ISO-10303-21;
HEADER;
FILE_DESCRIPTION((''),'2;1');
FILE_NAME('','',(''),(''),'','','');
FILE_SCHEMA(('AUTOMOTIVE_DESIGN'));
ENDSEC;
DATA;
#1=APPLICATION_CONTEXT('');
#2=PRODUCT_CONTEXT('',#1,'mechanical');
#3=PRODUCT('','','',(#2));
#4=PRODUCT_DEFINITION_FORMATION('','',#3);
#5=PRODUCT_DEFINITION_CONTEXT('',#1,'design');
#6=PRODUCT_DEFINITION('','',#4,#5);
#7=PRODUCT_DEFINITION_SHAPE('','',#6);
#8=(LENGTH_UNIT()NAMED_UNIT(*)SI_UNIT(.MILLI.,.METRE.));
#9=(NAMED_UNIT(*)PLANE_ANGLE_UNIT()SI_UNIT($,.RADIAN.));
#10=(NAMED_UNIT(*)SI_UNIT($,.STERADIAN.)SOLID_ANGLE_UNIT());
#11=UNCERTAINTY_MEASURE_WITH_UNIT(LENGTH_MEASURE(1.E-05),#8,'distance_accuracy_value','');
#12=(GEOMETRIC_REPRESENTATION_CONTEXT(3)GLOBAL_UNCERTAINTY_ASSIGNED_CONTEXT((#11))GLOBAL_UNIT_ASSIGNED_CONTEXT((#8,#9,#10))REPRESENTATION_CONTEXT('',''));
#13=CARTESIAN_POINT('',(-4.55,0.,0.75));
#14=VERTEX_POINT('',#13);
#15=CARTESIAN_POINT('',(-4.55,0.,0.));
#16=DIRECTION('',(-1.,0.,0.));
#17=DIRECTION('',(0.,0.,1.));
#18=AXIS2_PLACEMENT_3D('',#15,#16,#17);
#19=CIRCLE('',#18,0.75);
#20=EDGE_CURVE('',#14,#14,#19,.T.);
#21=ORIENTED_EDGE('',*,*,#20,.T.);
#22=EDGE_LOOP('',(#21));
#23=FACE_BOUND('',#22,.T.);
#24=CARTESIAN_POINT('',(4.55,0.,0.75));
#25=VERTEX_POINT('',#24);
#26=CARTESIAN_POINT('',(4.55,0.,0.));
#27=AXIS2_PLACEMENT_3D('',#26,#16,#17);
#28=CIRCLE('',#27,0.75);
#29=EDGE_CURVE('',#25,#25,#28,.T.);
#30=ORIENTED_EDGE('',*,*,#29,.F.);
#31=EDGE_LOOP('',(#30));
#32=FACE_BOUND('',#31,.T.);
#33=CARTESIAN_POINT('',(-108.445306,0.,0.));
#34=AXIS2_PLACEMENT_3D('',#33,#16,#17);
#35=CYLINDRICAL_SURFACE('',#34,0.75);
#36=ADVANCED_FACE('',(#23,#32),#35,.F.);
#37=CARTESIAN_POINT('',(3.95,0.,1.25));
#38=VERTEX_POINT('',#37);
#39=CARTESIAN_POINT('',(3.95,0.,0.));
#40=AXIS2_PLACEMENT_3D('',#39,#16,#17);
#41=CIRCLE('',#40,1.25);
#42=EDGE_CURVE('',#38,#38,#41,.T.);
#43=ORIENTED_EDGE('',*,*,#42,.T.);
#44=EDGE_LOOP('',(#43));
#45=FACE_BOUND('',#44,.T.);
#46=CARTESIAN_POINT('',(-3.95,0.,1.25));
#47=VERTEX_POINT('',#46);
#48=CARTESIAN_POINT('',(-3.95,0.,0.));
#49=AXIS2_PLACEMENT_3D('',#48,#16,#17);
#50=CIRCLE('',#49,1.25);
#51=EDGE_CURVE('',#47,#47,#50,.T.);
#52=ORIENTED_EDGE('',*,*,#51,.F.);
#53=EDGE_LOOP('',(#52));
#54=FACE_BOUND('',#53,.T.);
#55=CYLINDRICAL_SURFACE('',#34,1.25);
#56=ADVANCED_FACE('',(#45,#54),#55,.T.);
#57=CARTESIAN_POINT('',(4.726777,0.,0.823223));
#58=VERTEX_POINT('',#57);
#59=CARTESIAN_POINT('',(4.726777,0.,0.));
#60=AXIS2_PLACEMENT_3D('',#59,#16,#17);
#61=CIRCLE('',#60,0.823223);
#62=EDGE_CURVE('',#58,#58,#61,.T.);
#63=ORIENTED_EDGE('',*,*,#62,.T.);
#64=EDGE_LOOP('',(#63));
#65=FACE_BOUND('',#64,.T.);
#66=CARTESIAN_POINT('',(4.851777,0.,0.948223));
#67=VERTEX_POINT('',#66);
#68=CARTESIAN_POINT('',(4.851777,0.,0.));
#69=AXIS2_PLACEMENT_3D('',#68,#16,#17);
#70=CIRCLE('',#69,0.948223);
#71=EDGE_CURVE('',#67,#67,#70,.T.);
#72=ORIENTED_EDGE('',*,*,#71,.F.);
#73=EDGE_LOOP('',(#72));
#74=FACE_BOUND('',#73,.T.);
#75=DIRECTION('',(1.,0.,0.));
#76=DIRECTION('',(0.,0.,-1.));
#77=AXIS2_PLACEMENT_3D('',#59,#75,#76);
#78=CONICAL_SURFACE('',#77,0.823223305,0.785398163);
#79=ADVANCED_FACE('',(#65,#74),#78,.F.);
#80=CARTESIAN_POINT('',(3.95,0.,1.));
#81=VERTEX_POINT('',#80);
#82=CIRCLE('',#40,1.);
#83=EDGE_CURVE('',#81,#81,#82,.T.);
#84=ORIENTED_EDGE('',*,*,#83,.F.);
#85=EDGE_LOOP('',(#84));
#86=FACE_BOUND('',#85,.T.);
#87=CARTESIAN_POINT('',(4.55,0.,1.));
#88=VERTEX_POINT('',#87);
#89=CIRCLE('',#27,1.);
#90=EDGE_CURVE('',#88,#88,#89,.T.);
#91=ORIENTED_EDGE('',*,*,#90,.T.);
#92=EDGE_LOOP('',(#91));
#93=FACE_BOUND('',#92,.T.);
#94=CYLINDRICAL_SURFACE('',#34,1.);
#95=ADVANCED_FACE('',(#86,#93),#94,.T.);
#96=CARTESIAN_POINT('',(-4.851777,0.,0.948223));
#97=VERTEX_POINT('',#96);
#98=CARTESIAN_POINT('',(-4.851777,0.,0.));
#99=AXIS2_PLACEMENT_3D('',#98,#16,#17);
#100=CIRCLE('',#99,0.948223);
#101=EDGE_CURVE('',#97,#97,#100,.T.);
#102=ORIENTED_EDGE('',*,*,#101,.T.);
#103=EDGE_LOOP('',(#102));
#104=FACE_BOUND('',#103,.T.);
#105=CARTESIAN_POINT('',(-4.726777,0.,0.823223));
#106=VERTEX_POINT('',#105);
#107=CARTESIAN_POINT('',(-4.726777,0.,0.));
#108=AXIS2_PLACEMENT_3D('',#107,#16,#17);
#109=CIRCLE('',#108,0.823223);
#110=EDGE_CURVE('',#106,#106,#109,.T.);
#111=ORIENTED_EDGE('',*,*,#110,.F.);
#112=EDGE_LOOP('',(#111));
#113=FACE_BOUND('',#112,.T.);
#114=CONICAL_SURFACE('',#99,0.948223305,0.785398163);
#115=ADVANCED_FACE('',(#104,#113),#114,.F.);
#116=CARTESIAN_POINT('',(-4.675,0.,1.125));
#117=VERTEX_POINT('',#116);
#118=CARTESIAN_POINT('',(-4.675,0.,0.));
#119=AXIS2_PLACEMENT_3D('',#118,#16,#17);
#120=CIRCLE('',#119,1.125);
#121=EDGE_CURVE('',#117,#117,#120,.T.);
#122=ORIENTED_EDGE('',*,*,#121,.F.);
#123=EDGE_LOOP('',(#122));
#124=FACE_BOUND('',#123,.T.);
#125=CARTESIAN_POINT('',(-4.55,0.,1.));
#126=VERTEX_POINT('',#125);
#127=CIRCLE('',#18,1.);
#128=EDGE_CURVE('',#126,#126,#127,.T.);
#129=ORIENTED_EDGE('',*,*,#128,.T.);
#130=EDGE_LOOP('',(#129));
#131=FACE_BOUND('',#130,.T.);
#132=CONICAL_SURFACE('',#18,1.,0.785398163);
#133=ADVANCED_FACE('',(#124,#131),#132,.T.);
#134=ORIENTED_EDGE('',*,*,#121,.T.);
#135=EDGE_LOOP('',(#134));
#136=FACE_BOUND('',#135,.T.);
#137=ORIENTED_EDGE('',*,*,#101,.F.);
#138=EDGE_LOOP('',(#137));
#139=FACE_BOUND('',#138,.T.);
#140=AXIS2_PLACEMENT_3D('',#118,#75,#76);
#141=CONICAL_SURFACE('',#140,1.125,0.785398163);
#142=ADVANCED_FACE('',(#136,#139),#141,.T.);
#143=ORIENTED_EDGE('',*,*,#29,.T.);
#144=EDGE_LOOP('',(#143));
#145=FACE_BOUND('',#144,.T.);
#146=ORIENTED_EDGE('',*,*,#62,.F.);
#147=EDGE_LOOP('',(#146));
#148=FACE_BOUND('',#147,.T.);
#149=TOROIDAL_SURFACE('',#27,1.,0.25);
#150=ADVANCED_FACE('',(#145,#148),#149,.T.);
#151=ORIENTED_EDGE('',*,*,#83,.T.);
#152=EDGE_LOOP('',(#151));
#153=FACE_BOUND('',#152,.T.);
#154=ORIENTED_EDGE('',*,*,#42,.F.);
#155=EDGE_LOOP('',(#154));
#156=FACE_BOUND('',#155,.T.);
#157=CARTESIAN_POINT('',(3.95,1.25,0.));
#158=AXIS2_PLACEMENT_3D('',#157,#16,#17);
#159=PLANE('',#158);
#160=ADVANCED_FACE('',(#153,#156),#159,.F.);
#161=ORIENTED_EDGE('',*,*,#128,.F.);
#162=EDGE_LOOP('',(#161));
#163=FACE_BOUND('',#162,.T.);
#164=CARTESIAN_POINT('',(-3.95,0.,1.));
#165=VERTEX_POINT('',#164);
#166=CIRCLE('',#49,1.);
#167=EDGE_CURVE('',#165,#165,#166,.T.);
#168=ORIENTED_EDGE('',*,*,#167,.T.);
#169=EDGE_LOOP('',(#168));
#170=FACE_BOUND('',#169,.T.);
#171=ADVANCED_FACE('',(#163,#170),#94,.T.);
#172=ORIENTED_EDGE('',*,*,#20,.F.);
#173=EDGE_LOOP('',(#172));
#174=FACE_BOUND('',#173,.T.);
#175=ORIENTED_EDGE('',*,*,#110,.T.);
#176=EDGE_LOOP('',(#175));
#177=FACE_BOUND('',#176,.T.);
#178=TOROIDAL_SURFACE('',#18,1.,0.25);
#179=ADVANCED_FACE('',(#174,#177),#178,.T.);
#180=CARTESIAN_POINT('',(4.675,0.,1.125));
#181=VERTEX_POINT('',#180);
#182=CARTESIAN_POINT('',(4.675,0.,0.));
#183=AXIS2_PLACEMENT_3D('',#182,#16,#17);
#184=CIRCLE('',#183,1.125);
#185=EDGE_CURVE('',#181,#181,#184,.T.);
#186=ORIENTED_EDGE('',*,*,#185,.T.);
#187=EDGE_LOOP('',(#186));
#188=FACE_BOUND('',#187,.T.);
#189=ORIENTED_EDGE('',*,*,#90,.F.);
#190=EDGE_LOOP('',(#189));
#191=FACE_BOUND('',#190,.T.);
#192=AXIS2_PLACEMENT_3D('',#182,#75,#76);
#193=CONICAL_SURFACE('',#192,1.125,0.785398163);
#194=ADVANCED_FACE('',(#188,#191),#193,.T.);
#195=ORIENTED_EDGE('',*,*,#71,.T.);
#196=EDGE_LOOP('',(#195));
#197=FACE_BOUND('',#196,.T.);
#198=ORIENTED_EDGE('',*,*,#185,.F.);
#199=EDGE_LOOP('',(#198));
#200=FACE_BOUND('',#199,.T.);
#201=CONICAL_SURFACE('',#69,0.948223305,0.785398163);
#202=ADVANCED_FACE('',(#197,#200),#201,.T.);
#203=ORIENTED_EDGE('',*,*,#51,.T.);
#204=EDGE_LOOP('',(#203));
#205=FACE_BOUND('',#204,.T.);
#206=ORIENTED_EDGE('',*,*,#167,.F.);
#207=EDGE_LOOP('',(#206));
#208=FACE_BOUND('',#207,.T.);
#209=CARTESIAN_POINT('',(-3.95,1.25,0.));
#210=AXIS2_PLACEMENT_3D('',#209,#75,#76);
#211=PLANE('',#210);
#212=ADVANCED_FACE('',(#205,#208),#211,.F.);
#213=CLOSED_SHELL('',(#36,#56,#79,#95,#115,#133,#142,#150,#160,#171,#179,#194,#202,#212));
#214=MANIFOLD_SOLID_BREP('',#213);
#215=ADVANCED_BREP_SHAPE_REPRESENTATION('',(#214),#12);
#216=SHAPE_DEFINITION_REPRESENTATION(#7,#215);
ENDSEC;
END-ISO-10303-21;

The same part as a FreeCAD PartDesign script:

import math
import FreeCAD as App
import Part
import Sketcher

doc = App.newDocument("Part")
body = doc.addObject("PartDesign::Body", "Body")

# Sketch on XY plane
sketch1 = body.newObject("Sketcher::SketchObject", "Sketch")
sketch1.AttachmentSupport = (doc.getObject("XY_Plane"), [""])
sketch1.MapMode = "FlatFace"
sketch1.addGeometry([
    Part.LineSegment(App.Vector(3.95, 1.25, 0), App.Vector(-3.95, 1.25, 0)),  # 0
    Part.LineSegment(App.Vector(-3.95, 1.25, 0), App.Vector(-3.95, 1, 0)),  # 1
    Part.LineSegment(App.Vector(-3.95, 1, 0), App.Vector(-4.55, 1, 0)),  # 2
    Part.LineSegment(App.Vector(-4.55, 1, 0), App.Vector(-4.67, 1.12, 0)),  # 3
    Part.LineSegment(App.Vector(-4.67, 1.12, 0), App.Vector(-4.85, 0.95, 0)),  # 4
    Part.LineSegment(App.Vector(-4.85, 0.95, 0), App.Vector(-4.73, 0.82, 0)),  # 5
    Part.ArcOfCircle(Part.Circle(App.Vector(-4.55, 1, 0), App.Vector(0, 0, 1), 0.25), math.radians(-135), math.radians(-90)),  # 6
    Part.LineSegment(App.Vector(-4.55, 0.75, 0), App.Vector(4.55, 0.75, 0)),  # 7
    Part.ArcOfCircle(Part.Circle(App.Vector(4.55, 1, 0), App.Vector(0, 0, 1), 0.25), math.radians(-90), math.radians(-45)),  # 8
    Part.LineSegment(App.Vector(4.73, 0.82, 0), App.Vector(4.85, 0.95, 0)),  # 9
    Part.LineSegment(App.Vector(4.85, 0.95, 0), App.Vector(4.67, 1.12, 0)),  # 10
    Part.LineSegment(App.Vector(4.67, 1.12, 0), App.Vector(4.55, 1, 0)),  # 11
    Part.LineSegment(App.Vector(4.55, 1, 0), App.Vector(3.95, 1, 0)),  # 12
    Part.LineSegment(App.Vector(3.95, 1, 0), App.Vector(3.95, 1.25, 0)),  # 13
], False)
sketch1.addConstraint([
    Sketcher.Constraint("Coincident", 0, 2, 1, 1),
    Sketcher.Constraint("Coincident", 1, 2, 2, 1),
    Sketcher.Constraint("Coincident", 2, 2, 3, 1),
    Sketcher.Constraint("Coincident", 3, 2, 4, 1),
    Sketcher.Constraint("Coincident", 4, 2, 5, 1),
    Sketcher.Constraint("Tangent", 5, 2, 6, 1),
    Sketcher.Constraint("Tangent", 6, 2, 7, 1),
    Sketcher.Constraint("Tangent", 7, 2, 8, 1),
    Sketcher.Constraint("Tangent", 8, 2, 9, 1),
    Sketcher.Constraint("Coincident", 9, 2, 10, 1),
    Sketcher.Constraint("Coincident", 10, 2, 11, 1),
    Sketcher.Constraint("Coincident", 11, 2, 12, 1),
    Sketcher.Constraint("Coincident", 12, 2, 13, 1),
    Sketcher.Constraint("Coincident", 13, 2, 0, 1),
    Sketcher.Constraint("Horizontal", 0),
    Sketcher.Constraint("Vertical", 1),
    Sketcher.Constraint("Horizontal", 2),
    Sketcher.Constraint("Horizontal", 7),
    Sketcher.Constraint("Horizontal", 12),
    Sketcher.Constraint("Vertical", 13),
    Sketcher.Constraint("Coincident", 2, 2, 6, 3),
    Sketcher.Constraint("Coincident", 11, 2, 8, 3),
    Sketcher.Constraint("Equal", 6, 8),
    Sketcher.Constraint("Symmetric", 5, 2, 8, 2, -2),
    Sketcher.Constraint("Symmetric", 3, 2, 10, 2, -2),
    Sketcher.Constraint("Perpendicular", 3, 4),
    Sketcher.Constraint("Perpendicular", 4, 5),
    Sketcher.Constraint("Perpendicular", 5, 9),
    Sketcher.Constraint("Perpendicular", 9, 10),
    Sketcher.Constraint("Equal", 2, 12),
    Sketcher.Constraint("Radius", 6, 0.25),
    Sketcher.Constraint("DistanceX", 0, 2, 0, 1, 7.9),
    Sketcher.Constraint("DistanceX", 2, 2, 2, 1, 0.6),
    Sketcher.Constraint("DistanceY", -1, 1, 6, 3, 1.0),
    Sketcher.Constraint("DistanceY", 1, 2, 1, 1, 0.25),
    Sketcher.Constraint("DistanceX", 3, 2, -1, 1, 4.675),
])
revolution = body.newObject("PartDesign::Revolution", "Revolution")
revolution.Profile = sketch1
revolution.ReferenceAxis = (sketch1, ["H_Axis"])
revolution.Angle = 360

doc.recompute()
